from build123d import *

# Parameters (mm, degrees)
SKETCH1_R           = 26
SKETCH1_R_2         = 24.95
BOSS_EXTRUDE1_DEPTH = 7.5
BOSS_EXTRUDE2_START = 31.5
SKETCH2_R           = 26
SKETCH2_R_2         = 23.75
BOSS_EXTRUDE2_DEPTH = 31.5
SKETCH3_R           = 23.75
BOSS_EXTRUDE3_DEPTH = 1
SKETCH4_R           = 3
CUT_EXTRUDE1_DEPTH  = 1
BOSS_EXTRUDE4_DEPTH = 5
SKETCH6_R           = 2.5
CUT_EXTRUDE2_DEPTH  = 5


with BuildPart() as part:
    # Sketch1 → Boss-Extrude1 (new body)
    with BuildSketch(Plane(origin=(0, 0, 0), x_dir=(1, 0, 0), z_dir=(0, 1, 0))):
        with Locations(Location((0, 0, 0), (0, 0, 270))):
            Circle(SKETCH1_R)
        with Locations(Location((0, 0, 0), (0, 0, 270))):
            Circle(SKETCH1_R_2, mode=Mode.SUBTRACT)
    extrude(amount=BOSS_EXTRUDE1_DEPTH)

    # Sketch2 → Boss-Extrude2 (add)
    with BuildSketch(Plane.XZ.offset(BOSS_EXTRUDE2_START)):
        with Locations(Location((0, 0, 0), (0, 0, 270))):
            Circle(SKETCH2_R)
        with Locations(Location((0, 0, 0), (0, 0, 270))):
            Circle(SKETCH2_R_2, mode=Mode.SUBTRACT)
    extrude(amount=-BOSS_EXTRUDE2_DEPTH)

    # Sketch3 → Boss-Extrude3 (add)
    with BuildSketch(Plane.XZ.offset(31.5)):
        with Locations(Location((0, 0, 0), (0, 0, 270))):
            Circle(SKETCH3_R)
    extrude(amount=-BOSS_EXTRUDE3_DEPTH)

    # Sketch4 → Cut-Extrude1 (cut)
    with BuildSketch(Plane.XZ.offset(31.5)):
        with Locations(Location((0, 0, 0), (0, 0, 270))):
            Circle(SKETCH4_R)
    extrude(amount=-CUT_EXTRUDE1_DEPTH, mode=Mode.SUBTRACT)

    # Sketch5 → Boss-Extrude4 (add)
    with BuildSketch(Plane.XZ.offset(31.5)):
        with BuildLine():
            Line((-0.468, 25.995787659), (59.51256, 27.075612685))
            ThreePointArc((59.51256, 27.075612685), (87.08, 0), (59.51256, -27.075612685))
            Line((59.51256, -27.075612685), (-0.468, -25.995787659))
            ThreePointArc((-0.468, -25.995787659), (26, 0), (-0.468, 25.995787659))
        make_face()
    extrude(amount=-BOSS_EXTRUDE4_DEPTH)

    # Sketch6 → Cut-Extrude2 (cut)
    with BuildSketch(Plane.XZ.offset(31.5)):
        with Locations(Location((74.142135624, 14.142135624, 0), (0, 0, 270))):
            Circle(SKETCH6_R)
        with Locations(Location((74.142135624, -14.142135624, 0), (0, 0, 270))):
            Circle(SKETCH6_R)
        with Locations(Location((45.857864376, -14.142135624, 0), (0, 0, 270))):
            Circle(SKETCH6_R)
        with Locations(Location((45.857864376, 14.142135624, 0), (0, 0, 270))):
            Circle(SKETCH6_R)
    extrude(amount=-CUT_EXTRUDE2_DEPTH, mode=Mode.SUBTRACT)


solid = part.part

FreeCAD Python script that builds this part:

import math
import FreeCAD as App
import Part
import Sketcher
Q = App.Units.Quantity

doc = App.newDocument("Part")
body = doc.addObject("PartDesign::Body", "Body")

sketch1 = body.newObject("Sketcher::SketchObject", "Sketch")
sketch1.AttachmentSupport = (doc.getObject("XZ_Plane"), [""])
sketch1.MapMode = "FlatFace"
sketch1.addGeometry([
    Part.Circle(App.Vector(0, 0, 0), App.Vector(0, 0, 1), 26),
    Part.Circle(App.Vector(0, 0, 0), App.Vector(0, 0, 1), 25),
], False)
sketch1.addConstraint([
    Sketcher.Constraint("Coincident", 0, 3, -1, 1),
    Sketcher.Constraint("Coincident", 1, 3, -1, 1),
    Sketcher.Constraint("Diameter", 0, Q("52 mm")),
    Sketcher.Constraint("Diameter", 1, Q("49.9 mm")),
])
pad1 = body.newObject("PartDesign::Pad", "Pad")
pad1.Profile = sketch1
pad1.Length = 7.5
pad1.Reversed = True

sketch2 = body.newObject("Sketcher::SketchObject", "Sketch001")
sketch2.AttachmentSupport = (doc.getObject("XZ_Plane"), [""])
sketch2.MapMode = "FlatFace"
sketch2.AttachmentOffset = App.Placement(App.Vector(0, 0, 31.5), App.Rotation())
sketch2.addGeometry([
    Part.Circle(App.Vector(0, 0, 0), App.Vector(0, 0, 1), 26),
    Part.Circle(App.Vector(0, 0, 0), App.Vector(0, 0, 1), 24),
], False)
sketch2.addConstraint([
    Sketcher.Constraint("Coincident", 0, 3, -1, 1),
    Sketcher.Constraint("Coincident", 1, 3, -1, 1),
    Sketcher.Constraint("Diameter", 0, Q("52 mm")),
    Sketcher.Constraint("Diameter", 1, Q("47.5 mm")),
])
pad2 = body.newObject("PartDesign::Pad", "Pad001")
pad2.Profile = sketch2
pad2.Length = 31.5
pad2.Reversed = True

sketch3 = body.newObject("Sketcher::SketchObject", "Sketch002")
sketch3.AttachmentSupport = (doc.getObject("XZ_Plane"), [""])
sketch3.MapMode = "FlatFace"
sketch3.AttachmentOffset = App.Placement(App.Vector(0, 0, 31.5), App.Rotation())
sketch3.addGeometry(Part.Circle(App.Vector(0, 0, 0), App.Vector(0, 0, 1), 24), False)
sketch3.addConstraint([
    Sketcher.Constraint("Coincident", 0, 3, -1, 1),
    Sketcher.Constraint("Diameter", 0, Q("47.5 mm")),
])
pad3 = body.newObject("PartDesign::Pad", "Pad002")
pad3.Profile = sketch3
pad3.Length = 1
pad3.Reversed = True

sketch4 = body.newObject("Sketcher::SketchObject", "Sketch003")
sketch4.AttachmentSupport = (doc.getObject("XZ_Plane"), [""])
sketch4.MapMode = "FlatFace"
sketch4.AttachmentOffset = App.Placement(App.Vector(0, 0, 31.5), App.Rotation())
sketch4.addGeometry(Part.Circle(App.Vector(0, 0, 0), App.Vector(0, 0, 1), 3), False)
sketch4.addConstraint([
    Sketcher.Constraint("Coincident", 0, 3, -1, 1),
    Sketcher.Constraint("Diameter", 0, Q("6 mm")),
])
pocket1 = body.newObject("PartDesign::Pocket", "Pocket")
pocket1.Profile = sketch4
pocket1.Length = 1

sketch5 = body.newObject("Sketcher::SketchObject", "Sketch004")
sketch5.AttachmentSupport = (doc.getObject("XZ_Plane"), [""])
sketch5.MapMode = "FlatFace"
sketch5.AttachmentOffset = App.Placement(App.Vector(0, 0, 31.5), App.Rotation())
sketch5.addGeometry([
    Part.LineSegment(App.Vector(60, 27, 0), App.Vector(0, 26, 0)),
    Part.ArcOfCircle(Part.Circle(App.Vector(0, 0, 0), App.Vector(0, 0, 1), 26), math.radians(-91), math.radians(91)),
    Part.LineSegment(App.Vector(0, -26, 0), App.Vector(60, -27, 0)),
    Part.ArcOfCircle(Part.Circle(App.Vector(60, 0, 0), App.Vector(0, 0, 1), 27), math.radians(-91), math.radians(91)),
], False)
sketch5.addConstraint([
    Sketcher.Constraint("Tangent", 0, 2, 1, 2),
    Sketcher.Constraint("Tangent", 1, 1, 2, 1),
    Sketcher.Constraint("Tangent", 2, 2, 3, 1),
    Sketcher.Constraint("Tangent", 3, 2, 0, 1),
    Sketcher.Constraint("Coincident", 1, 3, -1, 1),
    Sketcher.Constraint("PointOnObject", 3, 3, -1),
    Sketcher.Constraint("Radius", 1, Q("26 mm")),
    Sketcher.Constraint("Radius", 3, Q("27.08 mm")),
    Sketcher.Constraint("DistanceX", -1, 1, 3, 3, Q("60 mm")),
])
pad4 = body.newObject("PartDesign::Pad", "Pad003")
pad4.Profile = sketch5
pad4.Length = 5
pad4.Reversed = True

sketch6 = body.newObject("Sketcher::SketchObject", "Sketch005")
sketch6.AttachmentSupport = (doc.getObject("XZ_Plane"), [""])
sketch6.MapMode = "FlatFace"
sketch6.AttachmentOffset = App.Placement(App.Vector(0, 0, 31.5), App.Rotation())
sketch6.addGeometry([
    Part.Circle(App.Vector(74.1, 14.1, 0), App.Vector(0, 0, 1), 2.5),
    Part.Circle(App.Vector(74.1, -14.1, 0), App.Vector(0, 0, 1), 2.5),
    Part.Circle(App.Vector(45.9, -14.1, 0), App.Vector(0, 0, 1), 2.5),
    Part.Circle(App.Vector(45.9, 14.1, 0), App.Vector(0, 0, 1), 2.5),
], False)
sketch6.addConstraint([
    Sketcher.Constraint("Equal", 0, 1),
    Sketcher.Constraint("Equal", 1, 2),
    Sketcher.Constraint("Equal", 2, 3),
    Sketcher.Constraint("Symmetric", 0, 3, 1, 3, -1),
    Sketcher.Constraint("Symmetric", 2, 3, 3, 3, -1),
    Sketcher.Constraint("Horizontal", 1, 3, 2, 3),
    Sketcher.Constraint("Diameter", 0, Q("5 mm")),
    Sketcher.Constraint("DistanceY", 1, 3, 0, 3, Q("28.284271 mm")),
    Sketcher.Constraint("DistanceX", 2, 3, 1, 3, Q("28.284271 mm")),
    Sketcher.Constraint("DistanceX", -1, 1, 0, 3, Q("74.142136 mm")),
])
pocket2 = body.newObject("PartDesign::Pocket", "Pocket001")
pocket2.Profile = sketch6
pocket2.Length = 5

doc.recompute()
